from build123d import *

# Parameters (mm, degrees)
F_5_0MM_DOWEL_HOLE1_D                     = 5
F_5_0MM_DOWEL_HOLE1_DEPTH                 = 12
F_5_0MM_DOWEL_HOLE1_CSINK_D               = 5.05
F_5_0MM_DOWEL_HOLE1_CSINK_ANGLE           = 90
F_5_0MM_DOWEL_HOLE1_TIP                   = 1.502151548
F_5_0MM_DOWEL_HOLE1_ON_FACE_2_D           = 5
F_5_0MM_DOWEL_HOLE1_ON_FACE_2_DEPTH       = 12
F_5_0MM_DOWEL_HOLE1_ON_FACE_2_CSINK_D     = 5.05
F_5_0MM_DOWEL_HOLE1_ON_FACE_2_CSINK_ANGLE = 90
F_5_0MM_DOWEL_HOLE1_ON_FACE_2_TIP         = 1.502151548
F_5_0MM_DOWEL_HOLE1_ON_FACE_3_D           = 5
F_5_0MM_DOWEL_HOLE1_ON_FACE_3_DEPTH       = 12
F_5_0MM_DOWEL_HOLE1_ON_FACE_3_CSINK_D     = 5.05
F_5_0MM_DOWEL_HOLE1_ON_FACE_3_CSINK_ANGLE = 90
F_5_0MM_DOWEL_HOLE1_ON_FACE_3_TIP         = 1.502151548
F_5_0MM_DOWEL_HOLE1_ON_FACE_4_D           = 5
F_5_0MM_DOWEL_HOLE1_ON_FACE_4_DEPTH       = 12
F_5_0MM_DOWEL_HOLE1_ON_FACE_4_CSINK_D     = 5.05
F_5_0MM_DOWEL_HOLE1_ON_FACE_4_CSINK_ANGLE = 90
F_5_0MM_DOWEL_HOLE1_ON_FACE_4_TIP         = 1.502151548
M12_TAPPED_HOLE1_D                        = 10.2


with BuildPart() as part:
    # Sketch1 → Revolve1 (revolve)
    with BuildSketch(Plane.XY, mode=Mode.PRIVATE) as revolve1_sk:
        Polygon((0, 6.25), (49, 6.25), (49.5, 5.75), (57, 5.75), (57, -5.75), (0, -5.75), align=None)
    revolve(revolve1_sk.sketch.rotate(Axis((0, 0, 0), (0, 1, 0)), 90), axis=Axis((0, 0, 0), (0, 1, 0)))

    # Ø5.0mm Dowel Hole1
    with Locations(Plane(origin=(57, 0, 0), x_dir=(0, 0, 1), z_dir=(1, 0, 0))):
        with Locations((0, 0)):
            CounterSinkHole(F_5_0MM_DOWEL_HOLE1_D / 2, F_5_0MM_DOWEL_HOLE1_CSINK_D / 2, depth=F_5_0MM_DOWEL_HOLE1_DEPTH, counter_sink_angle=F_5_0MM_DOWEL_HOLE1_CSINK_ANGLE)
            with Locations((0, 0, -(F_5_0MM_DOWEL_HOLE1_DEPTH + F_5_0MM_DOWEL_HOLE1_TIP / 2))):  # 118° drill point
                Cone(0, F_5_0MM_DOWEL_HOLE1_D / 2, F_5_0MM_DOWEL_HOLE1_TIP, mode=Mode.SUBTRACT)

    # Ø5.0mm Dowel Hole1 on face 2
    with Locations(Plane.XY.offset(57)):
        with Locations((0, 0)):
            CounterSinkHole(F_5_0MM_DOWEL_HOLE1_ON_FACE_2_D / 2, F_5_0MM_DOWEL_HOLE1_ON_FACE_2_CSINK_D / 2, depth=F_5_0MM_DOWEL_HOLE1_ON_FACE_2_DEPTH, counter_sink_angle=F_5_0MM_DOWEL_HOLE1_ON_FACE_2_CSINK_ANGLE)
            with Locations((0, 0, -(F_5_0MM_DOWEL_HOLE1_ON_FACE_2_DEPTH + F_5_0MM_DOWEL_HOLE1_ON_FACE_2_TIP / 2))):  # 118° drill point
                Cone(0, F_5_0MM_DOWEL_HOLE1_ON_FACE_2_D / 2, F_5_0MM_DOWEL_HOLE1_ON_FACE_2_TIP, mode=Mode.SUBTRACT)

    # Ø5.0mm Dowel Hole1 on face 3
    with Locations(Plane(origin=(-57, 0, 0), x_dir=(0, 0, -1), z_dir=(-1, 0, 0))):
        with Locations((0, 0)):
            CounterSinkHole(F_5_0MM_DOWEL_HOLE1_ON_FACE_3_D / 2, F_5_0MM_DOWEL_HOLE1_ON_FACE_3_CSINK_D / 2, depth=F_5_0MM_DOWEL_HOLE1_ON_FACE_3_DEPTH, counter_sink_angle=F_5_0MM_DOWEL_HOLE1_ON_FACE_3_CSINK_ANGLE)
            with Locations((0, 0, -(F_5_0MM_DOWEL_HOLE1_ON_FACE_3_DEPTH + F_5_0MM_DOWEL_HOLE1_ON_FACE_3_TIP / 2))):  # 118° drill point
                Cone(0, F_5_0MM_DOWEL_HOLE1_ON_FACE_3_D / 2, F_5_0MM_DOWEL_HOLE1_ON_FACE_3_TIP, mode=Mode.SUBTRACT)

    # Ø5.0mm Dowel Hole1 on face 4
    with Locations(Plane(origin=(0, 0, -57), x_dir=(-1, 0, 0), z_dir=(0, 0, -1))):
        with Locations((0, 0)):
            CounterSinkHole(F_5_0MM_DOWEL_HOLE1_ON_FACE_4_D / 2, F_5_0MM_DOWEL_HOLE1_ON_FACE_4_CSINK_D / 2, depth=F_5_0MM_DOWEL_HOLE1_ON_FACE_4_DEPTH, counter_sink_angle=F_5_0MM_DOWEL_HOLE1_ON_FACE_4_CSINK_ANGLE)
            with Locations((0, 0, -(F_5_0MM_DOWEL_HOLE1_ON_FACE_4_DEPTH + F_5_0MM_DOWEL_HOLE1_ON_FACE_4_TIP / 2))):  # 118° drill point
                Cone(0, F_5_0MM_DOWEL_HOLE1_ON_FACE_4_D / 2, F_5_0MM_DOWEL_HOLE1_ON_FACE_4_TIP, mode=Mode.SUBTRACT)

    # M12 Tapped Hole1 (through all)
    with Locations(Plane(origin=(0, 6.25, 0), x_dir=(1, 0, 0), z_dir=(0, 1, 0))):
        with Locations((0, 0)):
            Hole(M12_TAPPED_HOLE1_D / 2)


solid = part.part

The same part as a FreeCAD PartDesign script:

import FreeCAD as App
import Part
import Sketcher

V = App.Vector
Q = App.Units.Quantity

doc = App.newDocument("Part")
body = doc.addObject("PartDesign::Body", "Body")

sketch1 = doc.addObject("Sketcher::SketchObject", "Sketch")
body.addObject(sketch1)
sketch1.AttachmentSupport = (doc.XY_Plane, [""])
sketch1.MapMode = "FlatFace"
sketch1.addGeometry(Part.LineSegment(V(49, 6.25, 0), V(0, 6.25, 0)), False)
sketch1.addGeometry(Part.LineSegment(V(0, 6.25, 0), V(0, -5.75, 0)), False)
sketch1.addGeometry(Part.LineSegment(V(0, -5.75, 0), V(57, -5.75, 0)), False)
sketch1.addGeometry(Part.LineSegment(V(57, -5.75, 0), V(57, 5.75, 0)), False)
sketch1.addGeometry(Part.LineSegment(V(57, 5.75, 0), V(49.5, 5.75, 0)), False)
sketch1.addGeometry(Part.LineSegment(V(49.5, 5.75, 0), V(49, 6.25, 0)), False)
sketch1.addConstraint(Sketcher.Constraint("Coincident", 0, 2, 1, 1))
sketch1.addConstraint(Sketcher.Constraint("Coincident", 1, 2, 2, 1))
sketch1.addConstraint(Sketcher.Constraint("Coincident", 2, 2, 3, 1))
sketch1.addConstraint(Sketcher.Constraint("Coincident", 3, 2, 4, 1))
sketch1.addConstraint(Sketcher.Constraint("Coincident", 4, 2, 5, 1))
sketch1.addConstraint(Sketcher.Constraint("Coincident", 5, 2, 0, 1))
sketch1.addConstraint(Sketcher.Constraint("Horizontal", 0))
sketch1.addConstraint(Sketcher.Constraint("Vertical", 1))
sketch1.addConstraint(Sketcher.Constraint("Horizontal", 2))
sketch1.addConstraint(Sketcher.Constraint("Vertical", 3))
sketch1.addConstraint(Sketcher.Constraint("Horizontal", 4))
sketch1.addConstraint(Sketcher.Constraint("PointOnObject", 0, 2, -2))
sketch1.addConstraint(Sketcher.Constraint("DistanceX", 0, 2, 0, 1, Q("49 mm")))
sketch1.addConstraint(Sketcher.Constraint("DistanceX", 2, 1, 2, 2, Q("57 mm")))
sketch1.addConstraint(Sketcher.Constraint("DistanceY", 1, 2, 1, 1, Q("12 mm")))
sketch1.addConstraint(Sketcher.Constraint("Angle", 5, Q("135 deg")))
sketch1.addConstraint(Sketcher.Constraint("DistanceX", 4, 2, 4, 1, Q("7.5 mm")))
sketch1.addConstraint(Sketcher.Constraint("DistanceY", -1, 1, 0, 2, Q("6.25 mm")))
revolution = doc.addObject("PartDesign::Revolution", "Revolution")
body.addObject(revolution)
revolution.Profile = sketch1
revolution.ReferenceAxis = (sketch1, ["V_Axis"])
revolution.Angle = 360

sketch2 = doc.addObject("Sketcher::SketchObject", "Sketch001")
body.addObject(sketch2)
sketch2.AttachmentSupport = (doc.YZ_Plane, [""])
sketch2.MapMode = "FlatFace"
sketch2.AttachmentOffset = App.Placement(V(0, 0, 57), App.Rotation())
sketch2.addGeometry(Part.Circle(V(0, 0, 0), V(0, 0, 1), 2.5), False)
sketch2.addConstraint(Sketcher.Constraint("Coincident", 0, 3, -1, 1))
sketch2.addConstraint(Sketcher.Constraint("Diameter", 0, Q("5 mm")))
doc.recompute()
hole = doc.addObject("PartDesign::Hole", "Hole")
body.addObject(hole)
hole.Profile = sketch2
hole.ThreadType = "None"
hole.Diameter = 5
hole.DepthType = "Dimension"
hole.Depth = 12
hole.DrillPoint = "Angled"
hole.DrillPointAngle = 118
hole.HoleCutType = "Countersink"
hole.HoleCutDiameter = 5.05
hole.HoleCutCountersinkAngle = 90

sketch3 = doc.addObject("Sketcher::SketchObject", "Sketch002")
body.addObject(sketch3)
sketch3.AttachmentSupport = (doc.XY_Plane, [""])
sketch3.MapMode = "FlatFace"
sketch3.AttachmentOffset = App.Placement(V(0, 0, 57), App.Rotation())
sketch3.addGeometry(Part.Circle(V(0, 0, 0), V(0, 0, 1), 2.5), False)
sketch3.addConstraint(Sketcher.Constraint("Coincident", 0, 3, -1, 1))
sketch3.addConstraint(Sketcher.Constraint("Diameter", 0, Q("5 mm")))
doc.recompute()
hole2 = doc.addObject("PartDesign::Hole", "Hole001")
body.addObject(hole2)
hole2.Profile = sketch3
hole2.ThreadType = "None"
hole2.Diameter = 5
hole2.DepthType = "Dimension"
hole2.Depth = 12
hole2.DrillPoint = "Angled"
hole2.DrillPointAngle = 118
hole2.HoleCutType = "Countersink"
hole2.HoleCutDiameter = 5.05
hole2.HoleCutCountersinkAngle = 90

sketch4 = doc.addObject("Sketcher::SketchObject", "Sketch003")
body.addObject(sketch4)
sketch4.AttachmentSupport = (doc.YZ_Plane, [""])
sketch4.MapMode = "FlatFace"
sketch4.AttachmentOffset = App.Placement(V(0, 0, -57), App.Rotation())
sketch4.addGeometry(Part.Circle(V(0, 0, 0), V(0, 0, 1), 2.5), False)
sketch4.addConstraint(Sketcher.Constraint("Coincident", 0, 3, -1, 1))
sketch4.addConstraint(Sketcher.Constraint("Diameter", 0, Q("5 mm")))
doc.recompute()
hole3 = doc.addObject("PartDesign::Hole", "Hole002")
body.addObject(hole3)
hole3.Profile = sketch4
hole3.ThreadType = "None"
hole3.Diameter = 5
hole3.DepthType = "Dimension"
hole3.Depth = 12
hole3.DrillPoint = "Angled"
hole3.DrillPointAngle = 118
hole3.HoleCutType = "Countersink"
hole3.HoleCutDiameter = 5.05
hole3.HoleCutCountersinkAngle = 90
hole3.Reversed = True

sketch5 = doc.addObject("Sketcher::SketchObject", "Sketch004")
body.addObject(sketch5)
sketch5.AttachmentSupport = (doc.XY_Plane, [""])
sketch5.MapMode = "FlatFace"
sketch5.AttachmentOffset = App.Placement(V(0, 0, -57), App.Rotation())
sketch5.addGeometry(Part.Circle(V(0, 0, 0), V(0, 0, 1), 2.5), False)
sketch5.addConstraint(Sketcher.Constraint("Coincident", 0, 3, -1, 1))
sketch5.addConstraint(Sketcher.Constraint("Diameter", 0, Q("5 mm")))
doc.recompute()
hole4 = doc.addObject("PartDesign::Hole", "Hole003")
body.addObject(hole4)
hole4.Profile = sketch5
hole4.ThreadType = "None"
hole4.Diameter = 5
hole4.DepthType = "Dimension"
hole4.Depth = 12
hole4.DrillPoint = "Angled"
hole4.DrillPointAngle = 118
hole4.HoleCutType = "Countersink"
hole4.HoleCutDiameter = 5.05
hole4.HoleCutCountersinkAngle = 90
hole4.Reversed = True

sketch6 = doc.addObject("Sketcher::SketchObject", "Sketch005")
body.addObject(sketch6)
sketch6.AttachmentSupport = (doc.XZ_Plane, [""])
sketch6.MapMode = "FlatFace"
sketch6.AttachmentOffset = App.Placement(V(0, 0, -6.25), App.Rotation())
sketch6.addGeometry(Part.Circle(V(0, 0, 0), V(0, 0, 1), 5.1), False)
sketch6.addConstraint(Sketcher.Constraint("Coincident", 0, 3, -1, 1))
sketch6.addConstraint(Sketcher.Constraint("Diameter", 0, Q("10.2 mm")))
doc.recompute()
hole5 = doc.addObject("PartDesign::Hole", "Hole004")
body.addObject(hole5)
hole5.Profile = sketch6
hole5.ThreadType = "None"
hole5.Diameter = 10.2
hole5.DepthType = "ThroughAll"
hole5.Reversed = True

doc.recompute()
